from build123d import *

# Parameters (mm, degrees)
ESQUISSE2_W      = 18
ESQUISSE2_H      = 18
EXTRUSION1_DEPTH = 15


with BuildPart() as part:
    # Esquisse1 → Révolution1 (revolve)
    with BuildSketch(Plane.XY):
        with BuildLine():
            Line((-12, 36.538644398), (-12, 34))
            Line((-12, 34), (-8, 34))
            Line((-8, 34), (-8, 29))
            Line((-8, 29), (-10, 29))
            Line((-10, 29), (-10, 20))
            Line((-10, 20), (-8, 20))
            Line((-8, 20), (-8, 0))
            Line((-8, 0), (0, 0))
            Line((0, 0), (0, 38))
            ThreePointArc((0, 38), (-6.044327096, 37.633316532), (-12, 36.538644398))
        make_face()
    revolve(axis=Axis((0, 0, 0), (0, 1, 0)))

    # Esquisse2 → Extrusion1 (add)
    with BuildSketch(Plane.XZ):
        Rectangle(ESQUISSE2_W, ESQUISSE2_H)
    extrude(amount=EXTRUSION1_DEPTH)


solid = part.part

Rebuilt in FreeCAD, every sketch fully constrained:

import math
import FreeCAD as App
import Part
import Sketcher

V = App.Vector

doc = App.newDocument("Part")
body = doc.addObject("PartDesign::Body", "Body")

sketch1 = doc.addObject("Sketcher::SketchObject", "Sketch")
body.addObject(sketch1)
sketch1.AttachmentSupport = (doc.XY_Plane, [""])
sketch1.MapMode = "FlatFace"
sketch1.addGeometry(Part.LineSegment(V(-12, 36.538644, 0), V(-12, 34, 0)), False)
sketch1.addGeometry(Part.LineSegment(V(-12, 34, 0), V(-8, 34, 0)), False)
sketch1.addGeometry(Part.LineSegment(V(-8, 34, 0), V(-8, 29, 0)), False)
sketch1.addGeometry(Part.LineSegment(V(-8, 29, 0), V(-10, 29, 0)), False)
sketch1.addGeometry(Part.LineSegment(V(-10, 29, 0), V(-10, 20, 0)), False)
sketch1.addGeometry(Part.LineSegment(V(-10, 20, 0), V(-8, 20, 0)), False)
sketch1.addGeometry(Part.LineSegment(V(-8, 20, 0), V(-8, 0, 0)), False)
sketch1.addGeometry(Part.LineSegment(V(-8, 0, 0), V(0, 0, 0)), False)
sketch1.addGeometry(Part.LineSegment(V(0, 0, 0), V(0, 38, 0)), False)
sketch1.addGeometry(Part.ArcOfCircle(Part.Circle(V(0, -12, 0), V(0, 0, 1), 50), math.radians(90), math.radians(103.88654)), False)
sketch1.addConstraint(Sketcher.Constraint("Coincident", 0, 2, 1, 1))
sketch1.addConstraint(Sketcher.Constraint("Coincident", 1, 2, 2, 1))
sketch1.addConstraint(Sketcher.Constraint("Coincident", 2, 2, 3, 1))
sketch1.addConstraint(Sketcher.Constraint("Coincident", 3, 2, 4, 1))
sketch1.addConstraint(Sketcher.Constraint("Coincident", 4, 2, 5, 1))
sketch1.addConstraint(Sketcher.Constraint("Coincident", 5, 2, 6, 1))
sketch1.addConstraint(Sketcher.Constraint("Coincident", 6, 2, 7, 1))
sketch1.addConstraint(Sketcher.Constraint("Coincident", 7, 2, 8, 1))
sketch1.addConstraint(Sketcher.Constraint("Coincident", 8, 2, 9, 1))
sketch1.addConstraint(Sketcher.Constraint("Coincident", 9, 2, 0, 1))
sketch1.addConstraint(Sketcher.Constraint("Vertical", 0))
sketch1.addConstraint(Sketcher.Constraint("Horizontal", 1))
sketch1.addConstraint(Sketcher.Constraint("Vertical", 2))
sketch1.addConstraint(Sketcher.Constraint("Horizontal", 3))
sketch1.addConstraint(Sketcher.Constraint("Vertical", 4))
sketch1.addConstraint(Sketcher.Constraint("Horizontal", 5))
sketch1.addConstraint(Sketcher.Constraint("Vertical", 6))
sketch1.addConstraint(Sketcher.Constraint("Horizontal", 7))
sketch1.addConstraint(Sketcher.Constraint("Vertical", 8))
sketch1.addConstraint(Sketcher.Constraint("Coincident", 7, 2, -1, 1))
sketch1.addConstraint(Sketcher.Constraint("PointOnObject", 9, 3, -2))
sketch1.addConstraint(Sketcher.Constraint("Vertical", 2, 2, 5, 2))
sketch1.addConstraint(Sketcher.Constraint("Radius", 9, 50.0))
sketch1.addConstraint(Sketcher.Constraint("DistanceX", 1, 1, 1, 2, 4.0))
sketch1.addConstraint(Sketcher.Constraint("DistanceX", 3, 2, 3, 1, 2.0))
sketch1.addConstraint(Sketcher.Constraint("DistanceX", 7, 1, 7, 2, 8.0))
sketch1.addConstraint(Sketcher.Constraint("DistanceY", 2, 2, 2, 1, 5.0))
sketch1.addConstraint(Sketcher.Constraint("DistanceY", 4, 2, 4, 1, 9.0))
sketch1.addConstraint(Sketcher.Constraint("DistanceY", 6, 2, 6, 1, 20.0))
sketch1.addConstraint(Sketcher.Constraint("DistanceY", 8, 1, 8, 2, 38.0))
revolution = doc.addObject("PartDesign::Revolution", "Revolution")
body.addObject(revolution)
revolution.Profile = sketch1
revolution.ReferenceAxis = (sketch1, ["V_Axis"])
revolution.Angle = 360

sketch2 = doc.addObject("Sketcher::SketchObject", "Sketch001")
body.addObject(sketch2)
sketch2.AttachmentSupport = (doc.XZ_Plane, [""])
sketch2.MapMode = "FlatFace"
sketch2.addGeometry(Part.LineSegment(V(-9, 9, 0), V(-9, -9, 0)), False)
sketch2.addGeometry(Part.LineSegment(V(-9, -9, 0), V(9, -9, 0)), False)
sketch2.addGeometry(Part.LineSegment(V(9, -9, 0), V(9, 9, 0)), False)
sketch2.addGeometry(Part.LineSegment(V(9, 9, 0), V(-9, 9, 0)), False)
sketch2.addConstraint(Sketcher.Constraint("Coincident", 0, 2, 1, 1))
sketch2.addConstraint(Sketcher.Constraint("Coincident", 1, 2, 2, 1))
sketch2.addConstraint(Sketcher.Constraint("Coincident", 2, 2, 3, 1))
sketch2.addConstraint(Sketcher.Constraint("Coincident", 3, 2, 0, 1))
sketch2.addConstraint(Sketcher.Constraint("Vertical", 0))
sketch2.addConstraint(Sketcher.Constraint("Horizontal", 1))
sketch2.addConstraint(Sketcher.Constraint("Vertical", 2))
sketch2.addConstraint(Sketcher.Constraint("Horizontal", 3))
sketch2.addConstraint(Sketcher.Constraint("Symmetric", 0, 2, 2, 2, -1, 1))
sketch2.addConstraint(Sketcher.Constraint("Equal", 3, 0))
sketch2.addConstraint(Sketcher.Constraint("DistanceX", 1, 1, 1, 2, 18.0))
pad1 = doc.addObject("PartDesign::Pad", "Pad")
body.addObject(pad1)
pad1.Profile = sketch2
pad1.Length = 15

doc.recompute()
